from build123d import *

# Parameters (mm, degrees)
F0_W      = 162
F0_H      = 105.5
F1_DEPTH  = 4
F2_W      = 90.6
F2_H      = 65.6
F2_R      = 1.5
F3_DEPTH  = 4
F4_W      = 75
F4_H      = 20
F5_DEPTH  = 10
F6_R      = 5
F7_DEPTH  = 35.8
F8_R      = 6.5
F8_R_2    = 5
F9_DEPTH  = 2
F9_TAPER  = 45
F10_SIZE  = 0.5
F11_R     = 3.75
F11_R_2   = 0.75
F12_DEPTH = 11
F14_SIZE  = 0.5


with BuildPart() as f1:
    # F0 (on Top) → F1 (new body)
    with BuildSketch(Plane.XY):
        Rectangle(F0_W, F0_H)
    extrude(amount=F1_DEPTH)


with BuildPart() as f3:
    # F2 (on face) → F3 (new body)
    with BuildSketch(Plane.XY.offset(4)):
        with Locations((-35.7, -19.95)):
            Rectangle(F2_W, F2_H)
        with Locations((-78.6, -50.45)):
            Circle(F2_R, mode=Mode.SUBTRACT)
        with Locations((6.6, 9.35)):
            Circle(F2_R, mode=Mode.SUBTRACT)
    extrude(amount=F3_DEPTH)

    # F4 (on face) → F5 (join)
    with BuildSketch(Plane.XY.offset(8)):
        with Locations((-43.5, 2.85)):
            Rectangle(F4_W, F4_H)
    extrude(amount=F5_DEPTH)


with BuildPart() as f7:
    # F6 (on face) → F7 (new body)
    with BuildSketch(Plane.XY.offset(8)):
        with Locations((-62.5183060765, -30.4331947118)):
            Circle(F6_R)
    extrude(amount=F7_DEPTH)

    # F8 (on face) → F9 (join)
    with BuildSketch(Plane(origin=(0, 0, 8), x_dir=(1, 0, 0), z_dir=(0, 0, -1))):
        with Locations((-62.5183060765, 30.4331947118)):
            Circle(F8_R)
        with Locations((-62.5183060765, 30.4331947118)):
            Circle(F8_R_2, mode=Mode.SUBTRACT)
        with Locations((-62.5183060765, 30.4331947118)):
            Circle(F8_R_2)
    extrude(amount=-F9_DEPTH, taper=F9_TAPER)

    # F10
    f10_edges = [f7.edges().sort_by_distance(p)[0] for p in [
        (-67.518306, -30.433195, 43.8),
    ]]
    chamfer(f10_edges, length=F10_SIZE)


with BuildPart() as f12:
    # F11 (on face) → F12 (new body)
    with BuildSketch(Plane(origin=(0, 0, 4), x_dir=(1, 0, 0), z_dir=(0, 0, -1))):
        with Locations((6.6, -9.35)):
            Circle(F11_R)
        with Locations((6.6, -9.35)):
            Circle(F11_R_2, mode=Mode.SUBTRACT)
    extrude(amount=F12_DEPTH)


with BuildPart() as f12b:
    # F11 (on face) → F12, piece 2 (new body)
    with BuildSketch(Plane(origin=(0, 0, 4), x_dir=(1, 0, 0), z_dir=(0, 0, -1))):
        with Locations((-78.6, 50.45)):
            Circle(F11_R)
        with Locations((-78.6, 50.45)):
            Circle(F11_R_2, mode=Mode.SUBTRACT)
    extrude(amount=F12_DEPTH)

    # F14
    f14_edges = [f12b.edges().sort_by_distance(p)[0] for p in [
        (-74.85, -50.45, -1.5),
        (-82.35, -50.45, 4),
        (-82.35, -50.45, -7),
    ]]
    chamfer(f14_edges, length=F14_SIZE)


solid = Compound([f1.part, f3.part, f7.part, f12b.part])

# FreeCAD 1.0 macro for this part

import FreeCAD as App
import Part
import Sketcher
Q = App.Units.Quantity


def edges_at(feature, points):
    """Names of the edges that pass closest to the given points."""
    edges = feature.Shape.Edges
    near = lambda p: min(range(len(edges)), key=lambda i: edges[i].distToShape(Part.Vertex(*p))[0])
    return sorted({f"Edge{near(p) + 1}" for p in points})

doc = App.newDocument("Part")
body = doc.addObject("PartDesign::Body", "Body")

# Sketch on XY plane
sketch1 = body.newObject("Sketcher::SketchObject", "Sketch")
sketch1.AttachmentSupport = (doc.getObject("XY_Plane"), [""])
sketch1.MapMode = "FlatFace"
sketch1.addGeometry(Part.LineSegment(App.Vector(-81, 53, 0), App.Vector(-81, -53, 0)), False)
sketch1.addGeometry(Part.LineSegment(App.Vector(-81, -53, 0), App.Vector(81, -53, 0)), False)
sketch1.addGeometry(Part.LineSegment(App.Vector(81, -53, 0), App.Vector(81, 53, 0)), False)
sketch1.addGeometry(Part.LineSegment(App.Vector(81, 53, 0), App.Vector(-81, 53, 0)), False)
sketch1.addConstraint(Sketcher.Constraint("Coincident", 0, 2, 1, 1))
sketch1.addConstraint(Sketcher.Constraint("Coincident", 1, 2, 2, 1))
sketch1.addConstraint(Sketcher.Constraint("Coincident", 2, 2, 3, 1))
sketch1.addConstraint(Sketcher.Constraint("Coincident", 3, 2, 0, 1))
sketch1.addConstraint(Sketcher.Constraint("Vertical", 0))
sketch1.addConstraint(Sketcher.Constraint("Horizontal", 1))
sketch1.addConstraint(Sketcher.Constraint("Vertical", 2))
sketch1.addConstraint(Sketcher.Constraint("Horizontal", 3))
sketch1.addConstraint(Sketcher.Constraint("Symmetric", 0, 2, 2, 2, -1, 1))
sketch1.addConstraint(Sketcher.Constraint("DistanceX", 1, 1, 1, 2, Q("162 mm")))
sketch1.addConstraint(Sketcher.Constraint("DistanceY", 0, 2, 0, 1, Q("105.5 mm")))
pad1 = body.newObject("PartDesign::Pad", "Pad")
pad1.Profile = sketch1
pad1.Length = 4
body2 = doc.addObject("PartDesign::Body", "Body001")

# Sketch on XY plane
sketch2 = body2.newObject("Sketcher::SketchObject", "Sketch001")
sketch2.AttachmentSupport = (doc.getObject("XY_Plane001"), [""])
sketch2.MapMode = "FlatFace"
sketch2.AttachmentOffset = App.Placement(App.Vector(0, 0, 4), App.Rotation())
sketch2.addGeometry(Part.LineSegment(App.Vector(-81, 12.8, 0), App.Vector(-81, -52.8, 0)), False)
sketch2.addGeometry(Part.LineSegment(App.Vector(-81, -52.8, 0), App.Vector(9.6, -52.8, 0)), False)
sketch2.addGeometry(Part.LineSegment(App.Vector(9.6, -52.8, 0), App.Vector(9.6, 12.8, 0)), False)
sketch2.addGeometry(Part.LineSegment(App.Vector(9.6, 12.8, 0), App.Vector(-81, 12.8, 0)), False)
sketch2.addGeometry(Part.Circle(App.Vector(-78.6, -50.5, 0), App.Vector(0, 0, 1), 1.5), False)
sketch2.addGeometry(Part.Circle(App.Vector(6.6, 9.3, 0), App.Vector(0, 0, 1), 1.5), False)
sketch2.addConstraint(Sketcher.Constraint("Coincident", 0, 2, 1, 1))
sketch2.addConstraint(Sketcher.Constraint("Coincident", 1, 2, 2, 1))
sketch2.addConstraint(Sketcher.Constraint("Coincident", 2, 2, 3, 1))
sketch2.addConstraint(Sketcher.Constraint("Coincident", 3, 2, 0, 1))
sketch2.addConstraint(Sketcher.Constraint("Vertical", 0))
sketch2.addConstraint(Sketcher.Constraint("Horizontal", 1))
sketch2.addConstraint(Sketcher.Constraint("Vertical", 2))
sketch2.addConstraint(Sketcher.Constraint("Horizontal", 3))
sketch2.addConstraint(Sketcher.Constraint("Equal", 4, 5))
sketch2.addConstraint(Sketcher.Constraint("Diameter", 4, Q("3 mm")))
sketch2.addConstraint(Sketcher.Constraint("DistanceX", 1, 1, 1, 2, Q("90.6 mm")))
sketch2.addConstraint(Sketcher.Constraint("DistanceY", 0, 2, 0, 1, Q("65.6 mm")))
sketch2.addConstraint(Sketcher.Constraint("DistanceX", 0, 2, -1, 1, Q("81 mm")))
sketch2.addConstraint(Sketcher.Constraint("DistanceX", 5, 3, 1, 2, Q("3 mm")))
sketch2.addConstraint(Sketcher.Constraint("DistanceX", 4, 3, -1, 1, Q("78.6 mm")))
sketch2.addConstraint(Sketcher.Constraint("DistanceY", 4, 3, 5, 3, Q("59.8 mm")))
sketch2.addConstraint(Sketcher.Constraint("DistanceY", 0, 2, 4, 3, Q("2.3 mm")))
sketch2.addConstraint(Sketcher.Constraint("DistanceY", 4, 3, -1, 1, Q("50.45 mm")))
pad2 = body2.newObject("PartDesign::Pad", "Pad001")
pad2.Profile = sketch2
pad2.Length = 4

# Sketch on XY plane
sketch3 = body2.newObject("Sketcher::SketchObject", "Sketch002")
sketch3.AttachmentSupport = (doc.getObject("XY_Plane001"), [""])
sketch3.MapMode = "FlatFace"
sketch3.AttachmentOffset = App.Placement(App.Vector(0, 0, 8), App.Rotation())
sketch3.addGeometry(Part.LineSegment(App.Vector(-81, 13, 0), App.Vector(-81, -7, 0)), False)
sketch3.addGeometry(Part.LineSegment(App.Vector(-81, -7, 0), App.Vector(-6, -7, 0)), False)
sketch3.addGeometry(Part.LineSegment(App.Vector(-6, -7, 0), App.Vector(-6, 13, 0)), False)
sketch3.addGeometry(Part.LineSegment(App.Vector(-6, 13, 0), App.Vector(-81, 13, 0)), False)
sketch3.addConstraint(Sketcher.Constraint("Coincident", 0, 2, 1, 1))
sketch3.addConstraint(Sketcher.Constraint("Coincident", 1, 2, 2, 1))
sketch3.addConstraint(Sketcher.Constraint("Coincident", 2, 2, 3, 1))
sketch3.addConstraint(Sketcher.Constraint("Coincident", 3, 2, 0, 1))
sketch3.addConstraint(Sketcher.Constraint("Vertical", 0))
sketch3.addConstraint(Sketcher.Constraint("Horizontal", 1))
sketch3.addConstraint(Sketcher.Constraint("Vertical", 2))
sketch3.addConstraint(Sketcher.Constraint("Horizontal", 3))
sketch3.addConstraint(Sketcher.Constraint("DistanceX", 1, 1, 1, 2, Q("75 mm")))
sketch3.addConstraint(Sketcher.Constraint("DistanceY", 0, 2, 0, 1, Q("20 mm")))
sketch3.addConstraint(Sketcher.Constraint("DistanceX", 0, 2, -1, 1, Q("81 mm")))
sketch3.addConstraint(Sketcher.Constraint("DistanceY", 0, 2, -1, 1, Q("7.15 mm")))
pad3 = body2.newObject("PartDesign::Pad", "Pad002")
pad3.Profile = sketch3
pad3.Length = 10
body3 = doc.addObject("PartDesign::Body", "Body002")

# Sketch on XY plane
sketch4 = body3.newObject("Sketcher::SketchObject", "Sketch003")
sketch4.AttachmentSupport = (doc.getObject("XY_Plane002"), [""])
sketch4.MapMode = "FlatFace"
sketch4.AttachmentOffset = App.Placement(App.Vector(0, 0, 8), App.Rotation())
sketch4.addGeometry(Part.Circle(App.Vector(-63, -30, 0), App.Vector(0, 0, 1), 5), False)
sketch4.addConstraint(Sketcher.Constraint("Diameter", 0, Q("10 mm")))
sketch4.addConstraint(Sketcher.Constraint("DistanceX", 0, 3, -1, 1, Q("62.518306 mm")))
sketch4.addConstraint(Sketcher.Constraint("DistanceY", 0, 3, -1, 1, Q("30.433195 mm")))
pad4 = body3.newObject("PartDesign::Pad", "Pad003")
pad4.Profile = sketch4
pad4.Length = 35.8

# Sketch on XY plane
sketch5 = body3.newObject("Sketcher::SketchObject", "Sketch004")
sketch5.AttachmentSupport = (doc.getObject("XY_Plane002"), [""])
sketch5.MapMode = "FlatFace"
sketch5.AttachmentOffset = App.Placement(App.Vector(0, 0, 8), App.Rotation())
sketch5.addGeometry(Part.Circle(App.Vector(-63, -30, 0), App.Vector(0, 0, 1), 6), False)
sketch5.addConstraint(Sketcher.Constraint("Diameter", 0, Q("13 mm")))
sketch5.addConstraint(Sketcher.Constraint("DistanceX", 0, 3, -1, 1, Q("62.518306 mm")))
sketch5.addConstraint(Sketcher.Constraint("DistanceY", 0, 3, -1, 1, Q("30.433195 mm")))
pad5 = body3.newObject("PartDesign::Pad", "Pad004")
pad5.Profile = sketch5
pad5.Length = 2
pad5.TaperAngle = -45
doc.recompute()

chamfer = body3.newObject("PartDesign::Chamfer", "Chamfer")
chamfer.Base = (pad5, edges_at(pad5, [(-67.518, -30.433, 43.8)]))
chamfer.Size = 0.5
body4 = doc.addObject("PartDesign::Body", "Body003")

# Sketch on XY plane
sketch6 = body4.newObject("Sketcher::SketchObject", "Sketch005")
sketch6.AttachmentSupport = (doc.getObject("XY_Plane003"), [""])
sketch6.MapMode = "FlatFace"
sketch6.AttachmentOffset = App.Placement(App.Vector(0, 0, 4), App.Rotation())
sketch6.addGeometry(Part.Circle(App.Vector(6.6, 9.3, 0), App.Vector(0, 0, 1), 3.8), False)
sketch6.addGeometry(Part.Circle(App.Vector(6.6, 9.3, 0), App.Vector(0, 0, 1), 0.8), False)
sketch6.addConstraint(Sketcher.Constraint("Coincident", 1, 3, 0, 3))
sketch6.addConstraint(Sketcher.Constraint("Diameter", 0, Q("7.5 mm")))
sketch6.addConstraint(Sketcher.Constraint("Diameter", 1, Q("1.5 mm")))
sketch6.addConstraint(Sketcher.Constraint("DistanceX", -1, 1, 0, 3, Q("6.6 mm")))
sketch6.addConstraint(Sketcher.Constraint("DistanceY", -1, 1, 0, 3, Q("9.35 mm")))
pad6 = body4.newObject("PartDesign::Pad", "Pad005")
pad6.Profile = sketch6
pad6.Length = 11
pad6.Reversed = True
body5 = doc.addObject("PartDesign::Body", "Body004")

# Sketch on XY plane
sketch7 = body5.newObject("Sketcher::SketchObject", "Sketch006")
sketch7.AttachmentSupport = (doc.getObject("XY_Plane004"), [""])
sketch7.MapMode = "FlatFace"
sketch7.AttachmentOffset = App.Placement(App.Vector(0, 0, 4), App.Rotation())
sketch7.addGeometry(Part.Circle(App.Vector(-78.6, -50.5, 0), App.Vector(0, 0, 1), 3.8), False)
sketch7.addGeometry(Part.Circle(App.Vector(-78.6, -50.5, 0), App.Vector(0, 0, 1), 0.8), False)
sketch7.addConstraint(Sketcher.Constraint("Coincident", 1, 3, 0, 3))
sketch7.addConstraint(Sketcher.Constraint("Diameter", 0, Q("7.5 mm")))
sketch7.addConstraint(Sketcher.Constraint("Diameter", 1, Q("1.5 mm")))
sketch7.addConstraint(Sketcher.Constraint("DistanceX", 0, 3, -1, 1, Q("78.6 mm")))
sketch7.addConstraint(Sketcher.Constraint("DistanceY", 0, 3, -1, 1, Q("50.45 mm")))
pad7 = body5.newObject("PartDesign::Pad", "Pad006")
pad7.Profile = sketch7
pad7.Length = 11
pad7.Reversed = True
doc.recompute()

chamfer2 = body5.newObject("PartDesign::Chamfer", "Chamfer001")
chamfer2.Base = (pad7, edges_at(pad7, [(-74.85, -50.45, -1.5), (-82.35, -50.45, 4), (-82.35, -50.45, -7)]))
chamfer2.Size = 0.5
body4.Visibility = False

doc.recompute()
